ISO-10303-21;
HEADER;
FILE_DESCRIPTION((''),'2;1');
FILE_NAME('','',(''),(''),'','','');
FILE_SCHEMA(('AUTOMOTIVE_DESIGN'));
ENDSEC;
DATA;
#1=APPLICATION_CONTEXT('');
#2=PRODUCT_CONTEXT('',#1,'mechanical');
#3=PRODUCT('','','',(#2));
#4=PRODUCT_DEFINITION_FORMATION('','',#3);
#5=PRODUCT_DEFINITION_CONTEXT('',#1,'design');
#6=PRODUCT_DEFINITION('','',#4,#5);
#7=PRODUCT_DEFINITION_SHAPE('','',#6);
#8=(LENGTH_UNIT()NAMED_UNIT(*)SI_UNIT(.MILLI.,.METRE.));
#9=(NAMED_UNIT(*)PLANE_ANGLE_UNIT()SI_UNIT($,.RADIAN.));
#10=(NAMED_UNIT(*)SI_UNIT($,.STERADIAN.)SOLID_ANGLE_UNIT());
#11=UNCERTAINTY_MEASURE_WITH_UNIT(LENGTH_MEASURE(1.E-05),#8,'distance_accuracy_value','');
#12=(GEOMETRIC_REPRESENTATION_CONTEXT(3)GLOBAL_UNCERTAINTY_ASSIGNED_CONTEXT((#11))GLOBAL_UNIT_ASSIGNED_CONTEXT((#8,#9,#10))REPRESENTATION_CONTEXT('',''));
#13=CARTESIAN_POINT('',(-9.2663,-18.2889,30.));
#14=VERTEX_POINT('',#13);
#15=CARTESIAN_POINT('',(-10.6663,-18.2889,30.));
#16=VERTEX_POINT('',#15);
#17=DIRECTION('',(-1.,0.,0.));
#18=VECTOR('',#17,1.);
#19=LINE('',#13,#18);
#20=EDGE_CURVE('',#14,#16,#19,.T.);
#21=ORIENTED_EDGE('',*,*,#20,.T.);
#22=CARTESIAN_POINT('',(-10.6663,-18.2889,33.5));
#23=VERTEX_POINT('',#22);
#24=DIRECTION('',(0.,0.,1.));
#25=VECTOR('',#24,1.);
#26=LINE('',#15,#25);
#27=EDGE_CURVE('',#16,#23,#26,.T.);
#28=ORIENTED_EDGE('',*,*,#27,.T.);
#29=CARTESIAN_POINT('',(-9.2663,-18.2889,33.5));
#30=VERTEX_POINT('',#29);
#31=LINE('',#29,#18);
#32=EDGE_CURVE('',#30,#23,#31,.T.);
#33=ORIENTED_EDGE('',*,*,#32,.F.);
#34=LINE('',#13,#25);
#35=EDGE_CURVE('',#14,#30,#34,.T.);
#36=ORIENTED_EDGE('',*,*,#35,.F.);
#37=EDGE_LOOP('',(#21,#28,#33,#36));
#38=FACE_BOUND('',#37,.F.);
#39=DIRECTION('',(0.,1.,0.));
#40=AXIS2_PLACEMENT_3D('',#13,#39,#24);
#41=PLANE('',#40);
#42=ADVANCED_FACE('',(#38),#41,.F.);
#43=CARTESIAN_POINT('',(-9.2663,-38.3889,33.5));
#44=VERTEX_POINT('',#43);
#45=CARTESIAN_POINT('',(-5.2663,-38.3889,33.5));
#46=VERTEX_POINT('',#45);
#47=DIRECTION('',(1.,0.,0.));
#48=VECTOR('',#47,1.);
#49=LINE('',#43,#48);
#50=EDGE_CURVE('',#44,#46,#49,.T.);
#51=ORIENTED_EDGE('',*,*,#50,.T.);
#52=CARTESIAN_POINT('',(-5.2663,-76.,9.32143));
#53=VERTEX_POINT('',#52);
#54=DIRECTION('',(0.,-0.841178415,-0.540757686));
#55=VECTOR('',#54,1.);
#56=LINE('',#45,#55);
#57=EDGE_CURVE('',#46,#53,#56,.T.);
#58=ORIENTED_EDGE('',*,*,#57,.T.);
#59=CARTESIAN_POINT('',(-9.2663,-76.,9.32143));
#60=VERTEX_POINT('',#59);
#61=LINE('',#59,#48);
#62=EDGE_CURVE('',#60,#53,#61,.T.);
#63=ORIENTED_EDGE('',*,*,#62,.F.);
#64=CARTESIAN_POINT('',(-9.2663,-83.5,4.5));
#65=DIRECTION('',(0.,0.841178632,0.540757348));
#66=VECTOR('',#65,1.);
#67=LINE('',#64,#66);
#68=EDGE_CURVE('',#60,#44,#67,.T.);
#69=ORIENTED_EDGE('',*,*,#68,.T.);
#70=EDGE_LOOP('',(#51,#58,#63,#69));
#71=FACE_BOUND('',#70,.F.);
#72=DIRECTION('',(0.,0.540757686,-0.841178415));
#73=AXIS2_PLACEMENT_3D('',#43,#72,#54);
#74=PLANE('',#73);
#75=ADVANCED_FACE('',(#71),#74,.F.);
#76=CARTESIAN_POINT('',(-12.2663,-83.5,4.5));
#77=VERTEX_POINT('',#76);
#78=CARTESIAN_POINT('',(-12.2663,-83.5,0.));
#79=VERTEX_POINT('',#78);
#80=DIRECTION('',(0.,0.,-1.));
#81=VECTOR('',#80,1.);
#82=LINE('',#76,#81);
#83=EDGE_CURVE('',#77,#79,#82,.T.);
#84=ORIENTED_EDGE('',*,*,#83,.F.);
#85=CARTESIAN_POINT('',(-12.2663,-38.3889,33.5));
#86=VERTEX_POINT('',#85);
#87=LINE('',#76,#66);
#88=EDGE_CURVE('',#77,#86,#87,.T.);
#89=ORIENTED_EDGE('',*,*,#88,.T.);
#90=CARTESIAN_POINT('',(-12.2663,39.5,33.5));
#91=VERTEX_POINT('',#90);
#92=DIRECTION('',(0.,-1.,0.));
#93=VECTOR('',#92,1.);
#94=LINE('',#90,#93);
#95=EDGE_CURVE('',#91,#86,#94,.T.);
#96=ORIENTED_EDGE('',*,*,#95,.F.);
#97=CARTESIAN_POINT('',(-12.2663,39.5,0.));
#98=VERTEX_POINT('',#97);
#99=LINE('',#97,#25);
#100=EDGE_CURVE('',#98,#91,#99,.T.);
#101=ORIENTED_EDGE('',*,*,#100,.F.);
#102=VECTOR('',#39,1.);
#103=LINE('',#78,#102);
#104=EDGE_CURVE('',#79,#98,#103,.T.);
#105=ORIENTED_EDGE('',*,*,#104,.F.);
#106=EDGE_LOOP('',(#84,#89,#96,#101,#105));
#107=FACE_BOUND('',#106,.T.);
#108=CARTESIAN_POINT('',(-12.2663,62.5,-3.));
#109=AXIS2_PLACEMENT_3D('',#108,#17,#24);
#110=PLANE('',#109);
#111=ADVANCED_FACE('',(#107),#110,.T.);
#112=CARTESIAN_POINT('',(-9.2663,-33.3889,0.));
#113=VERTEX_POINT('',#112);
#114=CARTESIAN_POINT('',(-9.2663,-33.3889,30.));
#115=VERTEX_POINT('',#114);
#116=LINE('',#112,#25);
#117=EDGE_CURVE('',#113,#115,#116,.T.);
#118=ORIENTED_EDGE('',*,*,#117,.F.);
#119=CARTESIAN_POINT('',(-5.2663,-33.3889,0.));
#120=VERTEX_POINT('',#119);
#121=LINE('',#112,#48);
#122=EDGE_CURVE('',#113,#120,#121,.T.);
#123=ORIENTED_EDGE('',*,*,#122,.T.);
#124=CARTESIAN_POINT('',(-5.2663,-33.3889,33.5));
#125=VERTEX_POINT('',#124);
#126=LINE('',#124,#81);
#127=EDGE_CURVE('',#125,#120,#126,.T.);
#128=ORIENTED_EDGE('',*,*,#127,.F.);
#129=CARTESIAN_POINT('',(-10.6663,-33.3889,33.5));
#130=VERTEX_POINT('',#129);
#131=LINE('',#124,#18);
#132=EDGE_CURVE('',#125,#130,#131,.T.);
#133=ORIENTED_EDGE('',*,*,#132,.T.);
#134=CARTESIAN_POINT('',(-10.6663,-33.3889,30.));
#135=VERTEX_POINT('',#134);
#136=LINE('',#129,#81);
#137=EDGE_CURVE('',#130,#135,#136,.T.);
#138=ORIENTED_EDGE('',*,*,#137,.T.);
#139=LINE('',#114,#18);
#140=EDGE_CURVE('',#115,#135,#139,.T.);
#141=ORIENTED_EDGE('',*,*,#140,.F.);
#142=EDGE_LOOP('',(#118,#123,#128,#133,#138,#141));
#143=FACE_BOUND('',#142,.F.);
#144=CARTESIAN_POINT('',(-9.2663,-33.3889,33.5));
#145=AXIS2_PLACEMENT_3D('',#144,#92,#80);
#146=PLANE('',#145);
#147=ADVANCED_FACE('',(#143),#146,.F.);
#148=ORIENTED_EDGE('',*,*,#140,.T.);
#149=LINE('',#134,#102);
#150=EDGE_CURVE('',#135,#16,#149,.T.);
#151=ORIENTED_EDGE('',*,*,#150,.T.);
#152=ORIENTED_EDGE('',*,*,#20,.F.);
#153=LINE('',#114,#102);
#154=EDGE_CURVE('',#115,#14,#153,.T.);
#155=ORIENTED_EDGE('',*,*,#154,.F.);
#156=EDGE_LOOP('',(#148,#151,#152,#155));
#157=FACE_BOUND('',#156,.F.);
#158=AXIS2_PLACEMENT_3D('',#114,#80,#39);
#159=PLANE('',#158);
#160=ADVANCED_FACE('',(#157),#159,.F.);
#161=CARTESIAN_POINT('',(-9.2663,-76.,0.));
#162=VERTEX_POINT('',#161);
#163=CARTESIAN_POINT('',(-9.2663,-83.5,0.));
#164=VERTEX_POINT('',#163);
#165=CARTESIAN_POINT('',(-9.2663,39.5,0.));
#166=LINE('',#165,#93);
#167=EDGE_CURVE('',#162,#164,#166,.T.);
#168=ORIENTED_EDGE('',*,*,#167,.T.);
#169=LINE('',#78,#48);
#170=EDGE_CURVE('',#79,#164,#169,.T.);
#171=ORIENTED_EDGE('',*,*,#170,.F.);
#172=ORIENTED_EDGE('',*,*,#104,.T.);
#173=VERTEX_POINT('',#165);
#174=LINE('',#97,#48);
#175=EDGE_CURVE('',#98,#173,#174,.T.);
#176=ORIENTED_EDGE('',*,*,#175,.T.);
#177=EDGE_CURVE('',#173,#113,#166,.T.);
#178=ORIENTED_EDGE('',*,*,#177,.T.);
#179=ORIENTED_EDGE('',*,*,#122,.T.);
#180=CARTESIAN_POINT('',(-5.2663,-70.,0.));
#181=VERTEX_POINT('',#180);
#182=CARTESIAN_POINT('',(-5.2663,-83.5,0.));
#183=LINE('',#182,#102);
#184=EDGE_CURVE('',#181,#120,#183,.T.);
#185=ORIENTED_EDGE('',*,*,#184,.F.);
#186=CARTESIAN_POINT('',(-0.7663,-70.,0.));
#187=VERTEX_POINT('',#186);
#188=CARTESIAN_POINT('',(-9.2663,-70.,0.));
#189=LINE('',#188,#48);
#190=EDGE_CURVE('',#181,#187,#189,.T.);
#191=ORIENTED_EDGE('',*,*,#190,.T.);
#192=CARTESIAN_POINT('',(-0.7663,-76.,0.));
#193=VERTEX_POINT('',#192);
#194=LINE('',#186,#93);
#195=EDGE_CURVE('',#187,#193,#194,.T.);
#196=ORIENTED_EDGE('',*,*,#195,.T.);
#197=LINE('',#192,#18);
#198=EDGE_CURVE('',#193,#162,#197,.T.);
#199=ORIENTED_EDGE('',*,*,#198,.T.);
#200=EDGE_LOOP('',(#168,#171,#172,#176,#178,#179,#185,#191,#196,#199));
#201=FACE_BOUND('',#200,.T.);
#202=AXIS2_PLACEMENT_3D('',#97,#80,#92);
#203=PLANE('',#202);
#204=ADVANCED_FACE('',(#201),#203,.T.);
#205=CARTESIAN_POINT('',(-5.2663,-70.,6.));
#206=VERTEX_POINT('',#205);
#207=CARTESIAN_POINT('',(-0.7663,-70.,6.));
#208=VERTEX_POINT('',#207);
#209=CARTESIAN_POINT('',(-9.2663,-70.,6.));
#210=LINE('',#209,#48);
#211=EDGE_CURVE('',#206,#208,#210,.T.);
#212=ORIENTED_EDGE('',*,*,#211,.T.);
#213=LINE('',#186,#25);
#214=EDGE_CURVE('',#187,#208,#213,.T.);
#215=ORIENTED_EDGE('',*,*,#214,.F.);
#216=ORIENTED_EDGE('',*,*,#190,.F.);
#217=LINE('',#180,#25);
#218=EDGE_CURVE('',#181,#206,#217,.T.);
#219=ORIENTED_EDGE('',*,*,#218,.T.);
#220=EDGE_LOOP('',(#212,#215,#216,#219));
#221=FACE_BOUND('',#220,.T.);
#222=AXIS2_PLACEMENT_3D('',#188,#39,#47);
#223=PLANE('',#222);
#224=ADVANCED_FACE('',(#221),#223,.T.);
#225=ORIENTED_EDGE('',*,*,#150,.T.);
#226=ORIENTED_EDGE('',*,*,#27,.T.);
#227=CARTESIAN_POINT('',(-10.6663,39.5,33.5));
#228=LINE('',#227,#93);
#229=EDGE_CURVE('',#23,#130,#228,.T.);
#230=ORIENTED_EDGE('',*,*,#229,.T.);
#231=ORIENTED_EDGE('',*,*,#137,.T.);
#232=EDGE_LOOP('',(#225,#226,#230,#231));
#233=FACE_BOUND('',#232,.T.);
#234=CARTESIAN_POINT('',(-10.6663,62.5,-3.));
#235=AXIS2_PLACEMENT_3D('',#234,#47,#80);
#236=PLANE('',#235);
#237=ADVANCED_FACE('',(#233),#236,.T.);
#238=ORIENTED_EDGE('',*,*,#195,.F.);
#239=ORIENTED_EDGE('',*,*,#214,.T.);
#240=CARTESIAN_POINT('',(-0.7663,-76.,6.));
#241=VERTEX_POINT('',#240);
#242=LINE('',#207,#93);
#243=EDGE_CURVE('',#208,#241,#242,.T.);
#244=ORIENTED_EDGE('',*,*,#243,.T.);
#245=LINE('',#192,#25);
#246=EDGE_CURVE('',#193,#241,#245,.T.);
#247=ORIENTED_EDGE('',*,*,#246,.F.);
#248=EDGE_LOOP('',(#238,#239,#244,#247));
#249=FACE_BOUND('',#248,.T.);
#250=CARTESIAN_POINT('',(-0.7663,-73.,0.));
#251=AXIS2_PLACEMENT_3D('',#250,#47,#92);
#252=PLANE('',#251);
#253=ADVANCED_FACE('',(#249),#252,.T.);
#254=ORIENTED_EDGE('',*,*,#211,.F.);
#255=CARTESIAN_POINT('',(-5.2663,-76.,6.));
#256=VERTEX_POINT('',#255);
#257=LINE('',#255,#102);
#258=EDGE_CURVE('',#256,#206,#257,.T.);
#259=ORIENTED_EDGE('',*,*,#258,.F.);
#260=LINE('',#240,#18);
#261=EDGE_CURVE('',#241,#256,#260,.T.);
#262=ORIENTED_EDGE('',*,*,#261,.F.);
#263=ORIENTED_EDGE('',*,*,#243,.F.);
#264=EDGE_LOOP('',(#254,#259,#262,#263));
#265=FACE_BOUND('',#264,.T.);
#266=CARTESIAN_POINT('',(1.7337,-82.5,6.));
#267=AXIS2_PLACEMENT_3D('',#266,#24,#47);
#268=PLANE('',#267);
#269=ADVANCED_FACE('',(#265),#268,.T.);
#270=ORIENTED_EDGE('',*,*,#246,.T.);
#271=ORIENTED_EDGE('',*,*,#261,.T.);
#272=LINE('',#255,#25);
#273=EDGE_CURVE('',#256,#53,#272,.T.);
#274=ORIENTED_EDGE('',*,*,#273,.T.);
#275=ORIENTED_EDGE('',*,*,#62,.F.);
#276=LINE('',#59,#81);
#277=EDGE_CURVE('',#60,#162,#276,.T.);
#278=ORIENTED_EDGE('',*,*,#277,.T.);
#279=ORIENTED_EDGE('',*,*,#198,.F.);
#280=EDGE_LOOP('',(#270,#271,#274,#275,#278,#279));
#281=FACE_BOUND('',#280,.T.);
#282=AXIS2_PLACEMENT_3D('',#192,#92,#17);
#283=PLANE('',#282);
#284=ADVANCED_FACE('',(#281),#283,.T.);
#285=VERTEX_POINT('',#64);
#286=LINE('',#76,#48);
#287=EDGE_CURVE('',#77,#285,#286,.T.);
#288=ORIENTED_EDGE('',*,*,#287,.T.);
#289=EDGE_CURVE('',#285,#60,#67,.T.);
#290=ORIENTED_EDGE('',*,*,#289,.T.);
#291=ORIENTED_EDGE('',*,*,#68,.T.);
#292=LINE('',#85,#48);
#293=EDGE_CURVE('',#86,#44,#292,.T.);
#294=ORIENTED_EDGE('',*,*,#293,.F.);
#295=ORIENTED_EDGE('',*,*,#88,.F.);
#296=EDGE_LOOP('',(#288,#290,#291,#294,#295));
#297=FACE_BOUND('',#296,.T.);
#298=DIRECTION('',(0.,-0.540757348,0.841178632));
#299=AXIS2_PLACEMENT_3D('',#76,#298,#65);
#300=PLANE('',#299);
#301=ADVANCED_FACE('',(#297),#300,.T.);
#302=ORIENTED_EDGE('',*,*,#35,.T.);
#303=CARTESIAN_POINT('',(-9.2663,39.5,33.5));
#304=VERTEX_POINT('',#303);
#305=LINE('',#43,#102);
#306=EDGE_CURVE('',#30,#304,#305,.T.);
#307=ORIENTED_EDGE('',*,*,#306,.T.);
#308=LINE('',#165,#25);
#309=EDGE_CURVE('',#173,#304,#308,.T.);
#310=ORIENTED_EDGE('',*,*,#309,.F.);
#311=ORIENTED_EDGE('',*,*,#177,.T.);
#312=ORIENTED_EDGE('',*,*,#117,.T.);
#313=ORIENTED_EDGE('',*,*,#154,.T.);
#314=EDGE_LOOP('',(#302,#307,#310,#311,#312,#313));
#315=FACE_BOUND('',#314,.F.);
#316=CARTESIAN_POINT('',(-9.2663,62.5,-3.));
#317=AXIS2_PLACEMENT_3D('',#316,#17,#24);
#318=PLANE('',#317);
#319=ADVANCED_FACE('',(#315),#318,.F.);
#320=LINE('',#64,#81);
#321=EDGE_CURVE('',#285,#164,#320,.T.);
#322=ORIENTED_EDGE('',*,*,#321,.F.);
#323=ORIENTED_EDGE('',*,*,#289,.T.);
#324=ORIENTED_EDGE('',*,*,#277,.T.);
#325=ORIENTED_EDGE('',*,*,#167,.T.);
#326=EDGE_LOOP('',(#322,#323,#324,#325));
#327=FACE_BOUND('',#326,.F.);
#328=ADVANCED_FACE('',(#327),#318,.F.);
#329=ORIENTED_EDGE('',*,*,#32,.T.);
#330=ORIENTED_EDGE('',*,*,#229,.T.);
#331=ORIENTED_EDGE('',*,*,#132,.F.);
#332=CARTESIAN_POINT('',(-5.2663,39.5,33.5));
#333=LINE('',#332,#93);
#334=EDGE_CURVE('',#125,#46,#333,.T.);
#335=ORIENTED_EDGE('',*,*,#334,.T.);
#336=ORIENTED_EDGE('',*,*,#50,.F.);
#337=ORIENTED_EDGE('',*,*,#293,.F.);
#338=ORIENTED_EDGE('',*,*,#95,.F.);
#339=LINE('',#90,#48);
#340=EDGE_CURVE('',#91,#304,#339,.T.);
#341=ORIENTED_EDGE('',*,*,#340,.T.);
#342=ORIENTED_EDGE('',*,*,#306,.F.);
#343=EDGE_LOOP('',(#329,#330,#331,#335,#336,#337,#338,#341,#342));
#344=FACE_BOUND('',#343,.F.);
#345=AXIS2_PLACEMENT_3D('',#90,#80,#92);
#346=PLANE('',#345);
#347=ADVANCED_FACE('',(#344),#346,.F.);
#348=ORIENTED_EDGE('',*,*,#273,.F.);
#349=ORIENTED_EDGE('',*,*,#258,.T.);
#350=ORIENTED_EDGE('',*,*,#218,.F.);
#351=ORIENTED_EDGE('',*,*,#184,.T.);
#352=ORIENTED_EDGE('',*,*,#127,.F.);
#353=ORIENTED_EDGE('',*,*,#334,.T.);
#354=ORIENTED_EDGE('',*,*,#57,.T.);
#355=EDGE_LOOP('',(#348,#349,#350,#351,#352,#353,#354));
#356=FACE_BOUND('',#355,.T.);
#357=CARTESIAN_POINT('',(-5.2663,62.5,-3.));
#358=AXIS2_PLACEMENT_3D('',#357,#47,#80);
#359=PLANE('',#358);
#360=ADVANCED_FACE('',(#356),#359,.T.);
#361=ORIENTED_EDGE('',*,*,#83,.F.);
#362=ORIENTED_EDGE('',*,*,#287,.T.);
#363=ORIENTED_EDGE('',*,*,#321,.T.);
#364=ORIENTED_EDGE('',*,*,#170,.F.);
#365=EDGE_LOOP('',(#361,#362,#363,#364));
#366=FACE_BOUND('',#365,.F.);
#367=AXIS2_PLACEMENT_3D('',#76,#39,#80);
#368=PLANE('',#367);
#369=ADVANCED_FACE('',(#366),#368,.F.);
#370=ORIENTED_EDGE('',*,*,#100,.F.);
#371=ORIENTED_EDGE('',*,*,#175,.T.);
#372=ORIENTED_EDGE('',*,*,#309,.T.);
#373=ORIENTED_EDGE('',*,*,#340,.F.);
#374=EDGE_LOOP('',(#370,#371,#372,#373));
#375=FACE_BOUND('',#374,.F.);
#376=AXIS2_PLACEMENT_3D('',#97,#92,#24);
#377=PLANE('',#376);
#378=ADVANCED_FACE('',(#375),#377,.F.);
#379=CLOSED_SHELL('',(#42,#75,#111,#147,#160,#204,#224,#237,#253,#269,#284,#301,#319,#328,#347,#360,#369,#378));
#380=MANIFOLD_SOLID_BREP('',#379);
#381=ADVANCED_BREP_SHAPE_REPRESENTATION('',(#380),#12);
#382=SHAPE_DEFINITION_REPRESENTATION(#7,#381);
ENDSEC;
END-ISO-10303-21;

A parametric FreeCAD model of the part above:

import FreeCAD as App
import Part
import Sketcher
from FreeCAD import Vector

doc = App.newDocument("Part")
params = doc.addObject("Spreadsheet::Sheet", "Params")
for row, (alias, value) in enumerate([
    ("sketch1_width", "123 mm"),
    ("sketch1_height", "33.5 mm"),
    ("sketch1_height2", "4.5 mm"),
    ("pad1_length", "3 mm"),
    ("sketch2_width", "15.1 mm"),
    ("sketch2_height", "3.5 mm"),
    ("pocket1_length", "1.4 mm"),
    ("sketch3_height", "6 mm"),
    ("sketch3_width", "8.5 mm"),
    ("pad2_length", "6 mm"),
    ("sketch4_width", "5 mm"),
    ("sketch4_width2", "6 mm"),
    ("sketch4_height", "33.5 mm"),
    ("pad3_length", "4 mm"),
], start=1):
    params.set(f"A{row}", alias)
    params.set(f"B{row}", "=" + value)
    params.setAlias(f"B{row}", alias)

body = doc.addObject("PartDesign::Body", "Body")

# Sketch on YZ plane
sketch1 = doc.addObject("Sketcher::SketchObject", "Sketch")
body.addObject(sketch1)
sketch1.AttachmentSupport = (doc.YZ_Plane, [""])
sketch1.MapMode = "FlatFace"
sketch1.AttachmentOffset = App.Placement(Vector(0, 0, -12.2663), App.Rotation())
sketch1.addGeometry([
    Part.LineSegment(Vector(39.5, 33.5, 0), Vector(39.5, 0, 0)),  # 0
    Part.LineSegment(Vector(39.5, 0, 0), Vector(-83.5, 0, 0)),  # 1
    Part.LineSegment(Vector(-83.5, 0, 0), Vector(-83.5, 4.5, 0)),  # 2
    Part.LineSegment(Vector(-83.5, 4.5, 0), Vector(-38.4, 33.5, 0)),  # 3
    Part.LineSegment(Vector(-38.4, 33.5, 0), Vector(39.5, 33.5, 0)),  # 4
], False)
sketch1.addConstraint([
    Sketcher.Constraint("Coincident", 0, 2, 1, 1),
    Sketcher.Constraint("Coincident", 1, 2, 2, 1),
    Sketcher.Constraint("Coincident", 2, 2, 3, 1),
    Sketcher.Constraint("Coincident", 3, 2, 4, 1),
    Sketcher.Constraint("Coincident", 4, 2, 0, 1),
    Sketcher.Constraint("Vertical", 0),
    Sketcher.Constraint("Horizontal", 1),
    Sketcher.Constraint("Vertical", 2),
    Sketcher.Constraint("Horizontal", 4),
    Sketcher.Constraint("PointOnObject", 0, 2, -1),
    Sketcher.Constraint("DistanceX", 1, 2, 1, 1, 123.0),
    Sketcher.Constraint("DistanceY", 0, 2, 0, 1, 33.5),
    Sketcher.Constraint("DistanceY", 2, 1, 2, 2, 4.5),
    Sketcher.Constraint("DistanceX", -1, 1, 0, 2, 39.5),
    Sketcher.Constraint("DistanceX", 4, 1, 4, 2, 77.889),
])
sketch1.setExpression("Constraints[10]", "Params.sketch1_width")
sketch1.setExpression("Constraints[11]", "Params.sketch1_height")
sketch1.setExpression("Constraints[12]", "Params.sketch1_height2")
pad1 = doc.addObject("PartDesign::Pad", "Pad")
body.addObject(pad1)
pad1.Profile = sketch1
pad1.setExpression("Length", "Params.pad1_length")

# Sketch on YZ plane
sketch2 = doc.addObject("Sketcher::SketchObject", "Sketch001")
body.addObject(sketch2)
sketch2.AttachmentSupport = (doc.YZ_Plane, [""])
sketch2.MapMode = "FlatFace"
sketch2.AttachmentOffset = App.Placement(Vector(0, 0, -9.2663), App.Rotation())
sketch2.addGeometry([
    Part.LineSegment(Vector(-18.3, 30, 0), Vector(-18.3, 33.5, 0)),
    Part.LineSegment(Vector(-18.3, 33.5, 0), Vector(-33.4, 33.5, 0)),
    Part.LineSegment(Vector(-33.4, 33.5, 0), Vector(-33.4, 30, 0)),
    Part.LineSegment(Vector(-33.4, 30, 0), Vector(-18.3, 30, 0)),
], False)
sketch2.addConstraint([
    Sketcher.Constraint("Coincident", 0, 2, 1, 1),
    Sketcher.Constraint("Coincident", 1, 2, 2, 1),
    Sketcher.Constraint("Coincident", 2, 2, 3, 1),
    Sketcher.Constraint("Coincident", 3, 2, 0, 1),
    Sketcher.Constraint("Vertical", 0),
    Sketcher.Constraint("Horizontal", 1),
    Sketcher.Constraint("Vertical", 2),
    Sketcher.Constraint("Horizontal", 3),
    Sketcher.Constraint("DistanceX", 1, 2, 1, 1, 15.1),
    Sketcher.Constraint("DistanceY", 0, 1, 0, 2, 3.5),
    Sketcher.Constraint("DistanceY", -1, 1, 2, 2, 30.0),
    Sketcher.Constraint("DistanceX", 0, 2, -1, 1, 18.289),
])
sketch2.setExpression("Constraints[8]", "Params.sketch2_width")
sketch2.setExpression("Constraints[9]", "Params.sketch2_height")
pocket1 = doc.addObject("PartDesign::Pocket", "Pocket")
body.addObject(pocket1)
pocket1.Profile = sketch2
pocket1.setExpression("Length", "Params.pocket1_length")

# Sketch on XY plane
sketch3 = doc.addObject("Sketcher::SketchObject", "Sketch002")
body.addObject(sketch3)
sketch3.AttachmentSupport = (doc.XY_Plane, [""])
sketch3.MapMode = "FlatFace"
sketch3.addGeometry([
    Part.LineSegment(Vector(-1, -76, 0), Vector(-1, -70, 0)),
    Part.LineSegment(Vector(-1, -70, 0), Vector(-9, -70, 0)),
    Part.LineSegment(Vector(-9, -70, 0), Vector(-9, -76, 0)),
    Part.LineSegment(Vector(-9, -76, 0), Vector(-1, -76, 0)),
], False)
sketch3.addConstraint([
    Sketcher.Constraint("Coincident", 0, 2, 1, 1),
    Sketcher.Constraint("Coincident", 1, 2, 2, 1),
    Sketcher.Constraint("Coincident", 2, 2, 3, 1),
    Sketcher.Constraint("Coincident", 3, 2, 0, 1),
    Sketcher.Constraint("Vertical", 0),
    Sketcher.Constraint("Horizontal", 1),
    Sketcher.Constraint("Vertical", 2),
    Sketcher.Constraint("Horizontal", 3),
    Sketcher.Constraint("DistanceY", 0, 1, 0, 2, 6.0),
    Sketcher.Constraint("DistanceX", 1, 2, 1, 1, 8.5),
    Sketcher.Constraint("DistanceY", 0, 2, -1, 1, 70.0),
    Sketcher.Constraint("DistanceX", 0, 2, -1, 1, 0.7663),
])
sketch3.setExpression("Constraints[8]", "Params.sketch3_height")
sketch3.setExpression("Constraints[9]", "Params.sketch3_width")
pad2 = doc.addObject("PartDesign::Pad", "Pad001")
body.addObject(pad2)
pad2.Profile = sketch3
pad2.setExpression("Length", "Params.pad2_length")

# Sketch on YZ plane
sketch4 = doc.addObject("Sketcher::SketchObject", "Sketch003")
body.addObject(sketch4)
sketch4.AttachmentSupport = (doc.YZ_Plane, [""])
sketch4.MapMode = "FlatFace"
sketch4.AttachmentOffset = App.Placement(Vector(0, 0, -9.2663), App.Rotation())
sketch4.addGeometry([
    Part.LineSegment(Vector(-70, 0, 0), Vector(-33.4, 0, 0)),  # 0
    Part.LineSegment(Vector(-33.4, 0, 0), Vector(-33.4, 33.5, 0)),  # 1
    Part.LineSegment(Vector(-33.4, 33.5, 0), Vector(-38.4, 33.5, 0)),  # 2
    Part.LineSegment(Vector(-38.4, 33.5, 0), Vector(-76, 9.3, 0)),  # 3
    Part.LineSegment(Vector(-76, 9.3, 0), Vector(-76, 6, 0)),  # 4
    Part.LineSegment(Vector(-76, 6, 0), Vector(-70, 6, 0)),  # 5
    Part.LineSegment(Vector(-70, 6, 0), Vector(-70, 0, 0)),  # 6
], False)
sketch4.addConstraint([
    Sketcher.Constraint("Coincident", 0, 2, 1, 1),
    Sketcher.Constraint("Coincident", 1, 2, 2, 1),
    Sketcher.Constraint("Coincident", 2, 2, 3, 1),
    Sketcher.Constraint("Coincident", 3, 2, 4, 1),
    Sketcher.Constraint("Coincident", 4, 2, 5, 1),
    Sketcher.Constraint("Coincident", 5, 2, 6, 1),
    Sketcher.Constraint("Coincident", 6, 2, 0, 1),
    Sketcher.Constraint("Horizontal", 0),
    Sketcher.Constraint("Vertical", 1),
    Sketcher.Constraint("Horizontal", 2),
    Sketcher.Constraint("Vertical", 4),
    Sketcher.Constraint("Horizontal", 5),
    Sketcher.Constraint("Vertical", 6),
    Sketcher.Constraint("PointOnObject", 0, 2, -1),
    Sketcher.Constraint("Equal", 5, 6),
    Sketcher.Constraint("DistanceX", 2, 2, 2, 1, 5.0),
    Sketcher.Constraint("DistanceX", 5, 1, 5, 2, 6.0),
    Sketcher.Constraint("DistanceY", 1, 1, 1, 2, 33.5),
    Sketcher.Constraint("DistanceX", 3, 2, -1, 1, 76.0),
    Sketcher.Constraint("DistanceX", 0, 1, 0, 2, 36.611),
    Sketcher.Constraint("DistanceY", 4, 2, 4, 1, 3.3214),
])
sketch4.setExpression("Constraints[15]", "Params.sketch4_width")
sketch4.setExpression("Constraints[16]", "Params.sketch4_width2")
sketch4.setExpression("Constraints[17]", "Params.sketch4_height")
pad3 = doc.addObject("PartDesign::Pad", "Pad002")
body.addObject(pad3)
pad3.Profile = sketch4
pad3.setExpression("Length", "Params.pad3_length")

doc.recompute()
